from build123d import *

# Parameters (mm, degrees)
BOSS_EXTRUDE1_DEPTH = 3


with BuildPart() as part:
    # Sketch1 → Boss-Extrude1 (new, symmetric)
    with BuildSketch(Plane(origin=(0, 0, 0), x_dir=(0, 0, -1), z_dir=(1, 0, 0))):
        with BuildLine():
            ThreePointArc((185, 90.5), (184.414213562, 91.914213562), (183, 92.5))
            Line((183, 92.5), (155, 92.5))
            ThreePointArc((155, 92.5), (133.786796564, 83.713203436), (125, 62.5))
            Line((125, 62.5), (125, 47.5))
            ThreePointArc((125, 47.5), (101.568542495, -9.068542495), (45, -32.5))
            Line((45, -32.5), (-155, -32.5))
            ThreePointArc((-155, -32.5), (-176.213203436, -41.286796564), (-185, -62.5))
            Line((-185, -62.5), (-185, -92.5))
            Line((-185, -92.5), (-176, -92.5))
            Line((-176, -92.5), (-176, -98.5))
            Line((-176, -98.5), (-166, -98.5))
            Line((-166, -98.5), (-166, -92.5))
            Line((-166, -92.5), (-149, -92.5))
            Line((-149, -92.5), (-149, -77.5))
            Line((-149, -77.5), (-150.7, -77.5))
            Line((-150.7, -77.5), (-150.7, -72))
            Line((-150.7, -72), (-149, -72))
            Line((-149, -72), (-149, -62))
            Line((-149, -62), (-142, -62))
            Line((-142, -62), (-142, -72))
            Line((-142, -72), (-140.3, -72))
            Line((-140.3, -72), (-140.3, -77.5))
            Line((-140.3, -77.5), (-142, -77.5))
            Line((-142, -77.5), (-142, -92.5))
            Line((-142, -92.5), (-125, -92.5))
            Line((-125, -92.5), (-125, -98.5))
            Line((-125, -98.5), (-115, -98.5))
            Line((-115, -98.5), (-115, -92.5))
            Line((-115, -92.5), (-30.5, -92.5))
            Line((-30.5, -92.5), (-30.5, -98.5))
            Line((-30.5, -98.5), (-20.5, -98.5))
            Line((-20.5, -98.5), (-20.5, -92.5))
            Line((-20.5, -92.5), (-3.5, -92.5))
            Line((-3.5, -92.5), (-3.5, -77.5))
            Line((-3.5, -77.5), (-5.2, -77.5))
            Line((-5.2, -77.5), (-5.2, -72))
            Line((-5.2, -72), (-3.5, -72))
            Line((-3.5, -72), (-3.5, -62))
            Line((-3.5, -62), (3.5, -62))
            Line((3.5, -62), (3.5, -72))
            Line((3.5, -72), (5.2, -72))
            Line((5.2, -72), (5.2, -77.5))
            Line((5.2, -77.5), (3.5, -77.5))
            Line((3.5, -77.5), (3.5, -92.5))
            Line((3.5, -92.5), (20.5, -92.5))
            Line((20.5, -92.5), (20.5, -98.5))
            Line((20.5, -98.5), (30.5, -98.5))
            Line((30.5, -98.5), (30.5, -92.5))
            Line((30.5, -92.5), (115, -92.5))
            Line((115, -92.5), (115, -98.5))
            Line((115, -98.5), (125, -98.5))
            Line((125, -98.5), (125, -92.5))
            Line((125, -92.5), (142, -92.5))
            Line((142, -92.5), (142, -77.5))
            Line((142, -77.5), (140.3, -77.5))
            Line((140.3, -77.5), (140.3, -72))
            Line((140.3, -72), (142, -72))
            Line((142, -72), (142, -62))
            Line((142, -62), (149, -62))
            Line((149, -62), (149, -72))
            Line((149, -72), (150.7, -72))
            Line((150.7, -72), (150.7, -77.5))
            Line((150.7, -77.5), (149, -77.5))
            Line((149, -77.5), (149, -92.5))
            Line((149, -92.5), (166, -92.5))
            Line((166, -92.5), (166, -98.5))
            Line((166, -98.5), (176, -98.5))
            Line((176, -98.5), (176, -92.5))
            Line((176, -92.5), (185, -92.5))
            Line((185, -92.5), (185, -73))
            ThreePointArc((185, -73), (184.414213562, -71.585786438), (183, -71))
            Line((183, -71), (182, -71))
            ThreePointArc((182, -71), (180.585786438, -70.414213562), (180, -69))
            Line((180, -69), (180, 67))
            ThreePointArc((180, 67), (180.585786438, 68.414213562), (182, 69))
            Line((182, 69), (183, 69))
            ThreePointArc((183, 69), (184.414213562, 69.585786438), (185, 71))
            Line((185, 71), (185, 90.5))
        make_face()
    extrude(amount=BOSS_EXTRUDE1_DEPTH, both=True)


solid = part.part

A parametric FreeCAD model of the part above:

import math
import FreeCAD as App
import Part
import Sketcher
Q = App.Units.Quantity

doc = App.newDocument("Part")
params = doc.addObject("Spreadsheet::Sheet", "Params")
for row, (alias, value) in enumerate([
    ("sketch1_radius", "2 mm"),
    ("sketch1_radius2", "30 mm"),
    ("sketch1_radius3", "80 mm"),
    ("sketch1_width", "15 mm"),
    ("sketch1_width2", "30 mm"),
    ("pad1_length", "6 mm"),
], start=1):
    params.set(f"A{row}", alias)
    params.set(f"B{row}", "=" + value)
    params.setAlias(f"B{row}", alias)

body = doc.addObject("PartDesign::Body", "Body")

sketch1 = body.newObject("Sketcher::SketchObject", "Sketch")
sketch1.AttachmentSupport = (doc.getObject("YZ_Plane"), [""])
sketch1.MapMode = "FlatFace"
sketch1.addGeometry([
    Part.ArcOfCircle(Part.Circle(App.Vector(90.5, -183, 0), App.Vector(0, 0, 1), 2), math.radians(-90), math.radians(0)),
    Part.LineSegment(App.Vector(92.5, -183, 0), App.Vector(92.5, -155, 0)),
    Part.ArcOfCircle(Part.Circle(App.Vector(62.5, -155, 0), App.Vector(0, 0, 1), 30), math.radians(0), math.radians(90)),
    Part.LineSegment(App.Vector(62.5, -125, 0), App.Vector(47.5, -125, 0)),
    Part.ArcOfCircle(Part.Circle(App.Vector(47.5, -45, 0), App.Vector(0, 0, 1), 80), math.radians(180), math.radians(270)),
    Part.LineSegment(App.Vector(-32.5, -45, 0), App.Vector(-32.5, 155, 0)),
    Part.ArcOfCircle(Part.Circle(App.Vector(-62.5, 155, 0), App.Vector(0, 0, 1), 30), math.radians(0), math.radians(90)),
    Part.LineSegment(App.Vector(-62.5, 185, 0), App.Vector(-92.5, 185, 0)),
    Part.LineSegment(App.Vector(-92.5, 185, 0), App.Vector(-92.5, 176, 0)),
    Part.LineSegment(App.Vector(-92.5, 176, 0), App.Vector(-98.5, 176, 0)),
    Part.LineSegment(App.Vector(-98.5, 176, 0), App.Vector(-98.5, 166, 0)),
    Part.LineSegment(App.Vector(-98.5, 166, 0), App.Vector(-92.5, 166, 0)),
    Part.LineSegment(App.Vector(-92.5, 166, 0), App.Vector(-92.5, 149, 0)),
    Part.LineSegment(App.Vector(-92.5, 149, 0), App.Vector(-77.5, 149, 0)),
    Part.LineSegment(App.Vector(-77.5, 149, 0), App.Vector(-77.5, 150.7, 0)),
    Part.LineSegment(App.Vector(-77.5, 150.7, 0), App.Vector(-72, 150.7, 0)),
    Part.LineSegment(App.Vector(-72, 150.7, 0), App.Vector(-72, 149, 0)),
    Part.LineSegment(App.Vector(-72, 149, 0), App.Vector(-62, 149, 0)),
    Part.LineSegment(App.Vector(-62, 149, 0), App.Vector(-62, 142, 0)),
    Part.LineSegment(App.Vector(-62, 142, 0), App.Vector(-72, 142, 0)),
    Part.LineSegment(App.Vector(-72, 142, 0), App.Vector(-72, 140.3, 0)),
    Part.LineSegment(App.Vector(-72, 140.3, 0), App.Vector(-77.5, 140.3, 0)),
    Part.LineSegment(App.Vector(-77.5, 140.3, 0), App.Vector(-77.5, 142, 0)),
    Part.LineSegment(App.Vector(-77.5, 142, 0), App.Vector(-92.5, 142, 0)),
    Part.LineSegment(App.Vector(-92.5, 142, 0), App.Vector(-92.5, 125, 0)),
    Part.LineSegment(App.Vector(-92.5, 125, 0), App.Vector(-98.5, 125, 0)),
    Part.LineSegment(App.Vector(-98.5, 125, 0), App.Vector(-98.5, 115, 0)),
    Part.LineSegment(App.Vector(-98.5, 115, 0), App.Vector(-92.5, 115, 0)),
    Part.LineSegment(App.Vector(-92.5, 115, 0), App.Vector(-92.5, 30.5, 0)),
    Part.LineSegment(App.Vector(-92.5, 30.5, 0), App.Vector(-98.5, 30.5, 0)),
    Part.LineSegment(App.Vector(-98.5, 30.5, 0), App.Vector(-98.5, 20.5, 0)),
    Part.LineSegment(App.Vector(-98.5, 20.5, 0), App.Vector(-92.5, 20.5, 0)),
    Part.LineSegment(App.Vector(-92.5, 20.5, 0), App.Vector(-92.5, 3.5, 0)),
    Part.LineSegment(App.Vector(-92.5, 3.5, 0), App.Vector(-77.5, 3.5, 0)),
    Part.LineSegment(App.Vector(-77.5, 3.5, 0), App.Vector(-77.5, 5.2, 0)),
    Part.LineSegment(App.Vector(-77.5, 5.2, 0), App.Vector(-72, 5.2, 0)),
    Part.LineSegment(App.Vector(-72, 5.2, 0), App.Vector(-72, 3.5, 0)),
    Part.LineSegment(App.Vector(-72, 3.5, 0), App.Vector(-62, 3.5, 0)),
    Part.LineSegment(App.Vector(-62, 3.5, 0), App.Vector(-62, -3.5, 0)),
    Part.LineSegment(App.Vector(-62, -3.5, 0), App.Vector(-72, -3.5, 0)),
    Part.LineSegment(App.Vector(-72, -3.5, 0), App.Vector(-72, -5.2, 0)),
    Part.LineSegment(App.Vector(-72, -5.2, 0), App.Vector(-77.5, -5.2, 0)),
    Part.LineSegment(App.Vector(-77.5, -5.2, 0), App.Vector(-77.5, -3.5, 0)),
    Part.LineSegment(App.Vector(-77.5, -3.5, 0), App.Vector(-92.5, -3.5, 0)),
    Part.LineSegment(App.Vector(-92.5, -3.5, 0), App.Vector(-92.5, -20.5, 0)),
    Part.LineSegment(App.Vector(-92.5, -20.5, 0), App.Vector(-98.5, -20.5, 0)),
    Part.LineSegment(App.Vector(-98.5, -20.5, 0), App.Vector(-98.5, -30.5, 0)),
    Part.LineSegment(App.Vector(-98.5, -30.5, 0), App.Vector(-92.5, -30.5, 0)),
    Part.LineSegment(App.Vector(-92.5, -30.5, 0), App.Vector(-92.5, -115, 0)),
    Part.LineSegment(App.Vector(-92.5, -115, 0), App.Vector(-98.5, -115, 0)),
    Part.LineSegment(App.Vector(-98.5, -115, 0), App.Vector(-98.5, -125, 0)),
    Part.LineSegment(App.Vector(-98.5, -125, 0), App.Vector(-92.5, -125, 0)),
    Part.LineSegment(App.Vector(-92.5, -125, 0), App.Vector(-92.5, -142, 0)),
    Part.LineSegment(App.Vector(-92.5, -142, 0), App.Vector(-77.5, -142, 0)),
    Part.LineSegment(App.Vector(-77.5, -142, 0), App.Vector(-77.5, -140.3, 0)),
    Part.LineSegment(App.Vector(-77.5, -140.3, 0), App.Vector(-72, -140.3, 0)),
    Part.LineSegment(App.Vector(-72, -140.3, 0), App.Vector(-72, -142, 0)),
    Part.LineSegment(App.Vector(-72, -142, 0), App.Vector(-62, -142, 0)),
    Part.LineSegment(App.Vector(-62, -142, 0), App.Vector(-62, -149, 0)),
    Part.LineSegment(App.Vector(-62, -149, 0), App.Vector(-72, -149, 0)),
    Part.LineSegment(App.Vector(-72, -149, 0), App.Vector(-72, -150.7, 0)),
    Part.LineSegment(App.Vector(-72, -150.7, 0), App.Vector(-77.5, -150.7, 0)),
    Part.LineSegment(App.Vector(-77.5, -150.7, 0), App.Vector(-77.5, -149, 0)),
    Part.LineSegment(App.Vector(-77.5, -149, 0), App.Vector(-92.5, -149, 0)),
    Part.LineSegment(App.Vector(-92.5, -149, 0), App.Vector(-92.5, -166, 0)),
    Part.LineSegment(App.Vector(-92.5, -166, 0), App.Vector(-98.5, -166, 0)),
    Part.LineSegment(App.Vector(-98.5, -166, 0), App.Vector(-98.5, -176, 0)),
    Part.LineSegment(App.Vector(-98.5, -176, 0), App.Vector(-92.5, -176, 0)),
    Part.LineSegment(App.Vector(-92.5, -176, 0), App.Vector(-92.5, -185, 0)),
    Part.LineSegment(App.Vector(-92.5, -185, 0), App.Vector(-73, -185, 0)),
    Part.ArcOfCircle(Part.Circle(App.Vector(-73, -183, 0), App.Vector(0, 0, 1), 2), math.radians(-90), math.radians(0)),
    Part.LineSegment(App.Vector(-71, -183, 0), App.Vector(-71, -182, 0)),
    Part.ArcOfCircle(Part.Circle(App.Vector(-69, -182, 0), App.Vector(0, 0, 1), 2), math.radians(90), math.radians(180)),
    Part.LineSegment(App.Vector(-69, -180, 0), App.Vector(67, -180, 0)),
    Part.ArcOfCircle(Part.Circle(App.Vector(67, -182, 0), App.Vector(0, 0, 1), 2), math.radians(0), math.radians(90)),
    Part.LineSegment(App.Vector(69, -182, 0), App.Vector(69, -183, 0)),
    Part.ArcOfCircle(Part.Circle(App.Vector(71, -183, 0), App.Vector(0, 0, 1), 2), math.radians(-180), math.radians(-90)),
    Part.LineSegment(App.Vector(71, -185, 0), App.Vector(90.5, -185, 0)),
], False)
sketch1.addConstraint([
    Sketcher.Constraint("Tangent", 0, 2, 1, 1),
    Sketcher.Constraint("Tangent", 1, 2, 2, 1),
    Sketcher.Constraint("Tangent", 2, 2, 3, 1),
    Sketcher.Constraint("Tangent", 3, 2, 4, 2),
    Sketcher.Constraint("Tangent", 4, 1, 5, 1),
    Sketcher.Constraint("Tangent", 5, 2, 6, 1),
    Sketcher.Constraint("Tangent", 6, 2, 7, 1),
    Sketcher.Constraint("Coincident", 7, 2, 8, 1),
    Sketcher.Constraint("Coincident", 8, 2, 9, 1),
    Sketcher.Constraint("Coincident", 9, 2, 10, 1),
    Sketcher.Constraint("Coincident", 10, 2, 11, 1),
    Sketcher.Constraint("Coincident", 11, 2, 12, 1),
    Sketcher.Constraint("Coincident", 12, 2, 13, 1),
    Sketcher.Constraint("Coincident", 13, 2, 14, 1),
    Sketcher.Constraint("Coincident", 14, 2, 15, 1),
    Sketcher.Constraint("Coincident", 15, 2, 16, 1),
    Sketcher.Constraint("Coincident", 16, 2, 17, 1),
    Sketcher.Constraint("Coincident", 17, 2, 18, 1),
    Sketcher.Constraint("Coincident", 18, 2, 19, 1),
    Sketcher.Constraint("Coincident", 19, 2, 20, 1),
    Sketcher.Constraint("Coincident", 20, 2, 21, 1),
    Sketcher.Constraint("Coincident", 21, 2, 22, 1),
    Sketcher.Constraint("Coincident", 22, 2, 23, 1),
    Sketcher.Constraint("Coincident", 23, 2, 24, 1),
    Sketcher.Constraint("Coincident", 24, 2, 25, 1),
    Sketcher.Constraint("Coincident", 25, 2, 26, 1),
    Sketcher.Constraint("Coincident", 26, 2, 27, 1),
    Sketcher.Constraint("Coincident", 27, 2, 28, 1),
    Sketcher.Constraint("Coincident", 28, 2, 29, 1),
    Sketcher.Constraint("Coincident", 29, 2, 30, 1),
    Sketcher.Constraint("Coincident", 30, 2, 31, 1),
    Sketcher.Constraint("Coincident", 31, 2, 32, 1),
    Sketcher.Constraint("Coincident", 32, 2, 33, 1),
    Sketcher.Constraint("Coincident", 33, 2, 34, 1),
    Sketcher.Constraint("Coincident", 34, 2, 35, 1),
    Sketcher.Constraint("Coincident", 35, 2, 36, 1),
    Sketcher.Constraint("Coincident", 36, 2, 37, 1),
    Sketcher.Constraint("Coincident", 37, 2, 38, 1),
    Sketcher.Constraint("Coincident", 38, 2, 39, 1),
    Sketcher.Constraint("Coincident", 39, 2, 40, 1),
    Sketcher.Constraint("Coincident", 40, 2, 41, 1),
    Sketcher.Constraint("Coincident", 41, 2, 42, 1),
    Sketcher.Constraint("Coincident", 42, 2, 43, 1),
    Sketcher.Constraint("Coincident", 43, 2, 44, 1),
    Sketcher.Constraint("Coincident", 44, 2, 45, 1),
    Sketcher.Constraint("Coincident", 45, 2, 46, 1),
    Sketcher.Constraint("Coincident", 46, 2, 47, 1),
    Sketcher.Constraint("Coincident", 47, 2, 48, 1),
    Sketcher.Constraint("Coincident", 48, 2, 49, 1),
    Sketcher.Constraint("Coincident", 49, 2, 50, 1),
    Sketcher.Constraint("Coincident", 50, 2, 51, 1),
    Sketcher.Constraint("Coincident", 51, 2, 52, 1),
    Sketcher.Constraint("Coincident", 52, 2, 53, 1),
    Sketcher.Constraint("Coincident", 53, 2, 54, 1),
    Sketcher.Constraint("Coincident", 54, 2, 55, 1),
    Sketcher.Constraint("Coincident", 55, 2, 56, 1),
    Sketcher.Constraint("Coincident", 56, 2, 57, 1),
    Sketcher.Constraint("Coincident", 57, 2, 58, 1),
    Sketcher.Constraint("Coincident", 58, 2, 59, 1),
    Sketcher.Constraint("Coincident", 59, 2, 60, 1),
    Sketcher.Constraint("Coincident", 60, 2, 61, 1),
    Sketcher.Constraint("Coincident", 61, 2, 62, 1),
    Sketcher.Constraint("Coincident", 62, 2, 63, 1),
    Sketcher.Constraint("Coincident", 63, 2, 64, 1),
    Sketcher.Constraint("Coincident", 64, 2, 65, 1),
    Sketcher.Constraint("Coincident", 65, 2, 66, 1),
    Sketcher.Constraint("Coincident", 66, 2, 67, 1),
    Sketcher.Constraint("Coincident", 67, 2, 68, 1),
    Sketcher.Constraint("Coincident", 68, 2, 69, 1),
    Sketcher.Constraint("Tangent", 69, 2, 70, 1),
    Sketcher.Constraint("Tangent", 70, 2, 71, 1),
    Sketcher.Constraint("Tangent", 71, 2, 72, 2),
    Sketcher.Constraint("Tangent", 72, 1, 73, 1),
    Sketcher.Constraint("Tangent", 73, 2, 74, 2),
    Sketcher.Constraint("Tangent", 74, 1, 75, 1),
    Sketcher.Constraint("Tangent", 75, 2, 76, 1),
    Sketcher.Constraint("Tangent", 76, 2, 77, 1),
    Sketcher.Constraint("Tangent", 77, 2, 0, 1),
    Sketcher.Constraint("Vertical", 1),
    Sketcher.Constraint("Horizontal", 3),
    Sketcher.Constraint("Vertical", 5),
    Sketcher.Constraint("Horizontal", 7),
    Sketcher.Constraint("Vertical", 8),
    Sketcher.Constraint("Horizontal", 9),
    Sketcher.Constraint("Vertical", 10),
    Sketcher.Constraint("Horizontal", 11),
    Sketcher.Constraint("Vertical", 12),
    Sketcher.Constraint("Horizontal", 13),
    Sketcher.Constraint("Vertical", 14),
    Sketcher.Constraint("Horizontal", 15),
    Sketcher.Constraint("Vertical", 16),
    Sketcher.Constraint("Horizontal", 17),
    Sketcher.Constraint("Vertical", 18),
    Sketcher.Constraint("Horizontal", 19),
    Sketcher.Constraint("Vertical", 20),
    Sketcher.Constraint("Horizontal", 21),
    Sketcher.Constraint("Vertical", 22),
    Sketcher.Constraint("Horizontal", 23),
    Sketcher.Constraint("Vertical", 24),
    Sketcher.Constraint("Horizontal", 25),
    Sketcher.Constraint("Vertical", 26),
    Sketcher.Constraint("Horizontal", 27),
    Sketcher.Constraint("Vertical", 28),
    Sketcher.Constraint("Horizontal", 29),
    Sketcher.Constraint("Vertical", 30),
    Sketcher.Constraint("Horizontal", 31),
    Sketcher.Constraint("Vertical", 32),
    Sketcher.Constraint("Horizontal", 33),
    Sketcher.Constraint("Vertical", 34),
    Sketcher.Constraint("Horizontal", 35),
    Sketcher.Constraint("Vertical", 36),
    Sketcher.Constraint("Horizontal", 37),
    Sketcher.Constraint("Vertical", 38),
    Sketcher.Constraint("Horizontal", 39),
    Sketcher.Constraint("Vertical", 40),
    Sketcher.Constraint("Horizontal", 41),
    Sketcher.Constraint("Vertical", 42),
    Sketcher.Constraint("Horizontal", 43),
    Sketcher.Constraint("Vertical", 44),
    Sketcher.Constraint("Horizontal", 45),
    Sketcher.Constraint("Vertical", 46),
    Sketcher.Constraint("Horizontal", 47),
    Sketcher.Constraint("Vertical", 48),
    Sketcher.Constraint("Horizontal", 49),
    Sketcher.Constraint("Vertical", 50),
    Sketcher.Constraint("Horizontal", 51),
    Sketcher.Constraint("Vertical", 52),
    Sketcher.Constraint("Horizontal", 53),
    Sketcher.Constraint("Vertical", 54),
    Sketcher.Constraint("Horizontal", 55),
    Sketcher.Constraint("Vertical", 56),
    Sketcher.Constraint("Horizontal", 57),
    Sketcher.Constraint("Vertical", 58),
    Sketcher.Constraint("Horizontal", 59),
    Sketcher.Constraint("Vertical", 60),
    Sketcher.Constraint("Horizontal", 61),
    Sketcher.Constraint("Vertical", 62),
    Sketcher.Constraint("Horizontal", 63),
    Sketcher.Constraint("Vertical", 64),
    Sketcher.Constraint("Horizontal", 65),
    Sketcher.Constraint("Vertical", 66),
    Sketcher.Constraint("Horizontal", 67),
    Sketcher.Constraint("Vertical", 68),
    Sketcher.Constraint("Horizontal", 69),
    Sketcher.Constraint("Vertical", 71),
    Sketcher.Constraint("Horizontal", 73),
    Sketcher.Constraint("Vertical", 75),
    Sketcher.Constraint("Horizontal", 77),
    Sketcher.Constraint("Equal", 2, 6),
    Sketcher.Constraint("Equal", 0, 70),
    Sketcher.Constraint("Equal", 70, 72),
    Sketcher.Constraint("Equal", 72, 74),
    Sketcher.Constraint("Equal", 74, 76),
    Sketcher.Constraint("Symmetric", 2, 3, 6, 3, -1, 1),
    Sketcher.Constraint("Symmetric", 36, 2, 39, 2, -1),
    Sketcher.Constraint("Symmetric", 34, 2, 41, 2, -1),
    Sketcher.Constraint("Symmetric", 32, 2, 43, 2, -1),
    Sketcher.Constraint("Symmetric", 30, 2, 45, 2, -1),
    Sketcher.Constraint("Symmetric", 28, 2, 47, 2, -1),
    Sketcher.Constraint("Symmetric", 26, 2, 49, 2, -1),
    Sketcher.Constraint("Symmetric", 24, 2, 51, 2, -1),
    Sketcher.Constraint("Symmetric", 22, 2, 53, 2, -1),
    Sketcher.Constraint("Symmetric", 20, 2, 55, 2, -1),
    Sketcher.Constraint("Symmetric", 18, 2, 57, 2, -1),
    Sketcher.Constraint("Symmetric", 16, 2, 59, 2, -1),
    Sketcher.Constraint("Symmetric", 14, 2, 61, 2, -1),
    Sketcher.Constraint("Symmetric", 12, 2, 63, 2, -1),
    Sketcher.Constraint("Symmetric", 10, 2, 65, 2, -1),
    Sketcher.Constraint("Symmetric", 8, 2, 67, 2, -1),
    Sketcher.Constraint("Horizontal", 0, 3, 70, 3),
    Sketcher.Constraint("Horizontal", 13, 2, 16, 2),
    Sketcher.Constraint("Horizontal", 19, 2, 22, 2),
    Sketcher.Constraint("Horizontal", 33, 2, 36, 2),
    Sketcher.Constraint("Horizontal", 3, 2, 50, 2),
    Sketcher.Constraint("Vertical", 8, 2, 11, 2),
    Sketcher.Constraint("Vertical", 16, 2, 19, 2),
    Sketcher.Constraint("Vertical", 14, 2, 21, 2),
    Sketcher.Constraint("Vertical", 12, 2, 23, 2),
    Sketcher.Constraint("Vertical", 10, 2, 25, 2),
    Sketcher.Constraint("Vertical", 24, 2, 27, 2),
    Sketcher.Constraint("Vertical", 26, 2, 29, 2),
    Sketcher.Constraint("Vertical", 28, 2, 31, 2),
    Sketcher.Constraint("Vertical", 22, 2, 33, 2),
    Sketcher.Constraint("Vertical", 20, 2, 35, 2),
    Sketcher.Constraint("Vertical", 18, 2, 37, 2),
    Sketcher.Constraint("Equal", 3, 13),
    Sketcher.Constraint("Equal", 69, 77),
    Sketcher.Constraint("Equal", 59, 10),
    Sketcher.Constraint("Equal", 16, 20),
    Sketcher.Constraint("Equal", 12, 24),
    Sketcher.Constraint("Equal", 10, 26),
    Sketcher.Constraint("Equal", 26, 30),
    Sketcher.Constraint("Equal", 24, 32),
    Sketcher.Constraint("Equal", 22, 34),
    Sketcher.Constraint("Equal", 18, 38),
    Sketcher.Constraint("Equal", 8, 68),
    Sketcher.Constraint("Radius", 0, Q("2 mm")),
    Sketcher.Constraint("Radius", 2, Q("30 mm")),
    Sketcher.Constraint("Radius", 4, Q("80 mm")),
    Sketcher.Constraint("DistanceX", 3, 2, 3, 1, Q("15 mm")),
    Sketcher.Constraint("DistanceX", 7, 2, 7, 1, Q("30 mm")),
    Sketcher.Constraint("DistanceX", 9, 2, 9, 1, Q("6 mm")),
    Sketcher.Constraint("DistanceX", 17, 1, 17, 2, Q("10 mm")),
    Sketcher.Constraint("DistanceX", 73, 1, 73, 2, Q("136 mm")),
    Sketcher.Constraint("DistanceY", 5, 1, 5, 2, Q("200 mm")),
    Sketcher.Constraint("DistanceY", 8, 2, 8, 1, Q("9 mm")),
    Sketcher.Constraint("DistanceY", 12, 2, 12, 1, Q("17 mm")),
    Sketcher.Constraint("DistanceY", 71, 1, 71, 2, Q("1 mm")),
    Sketcher.Constraint("DistanceX", 15, 1, 15, 2, Q("5.5 mm")),
    Sketcher.Constraint("DistanceY", 14, 1, 14, 2, Q("1.7 mm")),
])
sketch1.setExpression("Constraints[196]", "Params.sketch1_radius")
sketch1.setExpression("Constraints[197]", "Params.sketch1_radius2")
sketch1.setExpression("Constraints[198]", "Params.sketch1_radius3")
sketch1.setExpression("Constraints[199]", "Params.sketch1_width")
sketch1.setExpression("Constraints[200]", "Params.sketch1_width2")
pad1 = body.newObject("PartDesign::Pad", "Pad")
pad1.Profile = sketch1
pad1.setExpression("Length", "Params.pad1_length")
pad1.Midplane = True

doc.recompute()
